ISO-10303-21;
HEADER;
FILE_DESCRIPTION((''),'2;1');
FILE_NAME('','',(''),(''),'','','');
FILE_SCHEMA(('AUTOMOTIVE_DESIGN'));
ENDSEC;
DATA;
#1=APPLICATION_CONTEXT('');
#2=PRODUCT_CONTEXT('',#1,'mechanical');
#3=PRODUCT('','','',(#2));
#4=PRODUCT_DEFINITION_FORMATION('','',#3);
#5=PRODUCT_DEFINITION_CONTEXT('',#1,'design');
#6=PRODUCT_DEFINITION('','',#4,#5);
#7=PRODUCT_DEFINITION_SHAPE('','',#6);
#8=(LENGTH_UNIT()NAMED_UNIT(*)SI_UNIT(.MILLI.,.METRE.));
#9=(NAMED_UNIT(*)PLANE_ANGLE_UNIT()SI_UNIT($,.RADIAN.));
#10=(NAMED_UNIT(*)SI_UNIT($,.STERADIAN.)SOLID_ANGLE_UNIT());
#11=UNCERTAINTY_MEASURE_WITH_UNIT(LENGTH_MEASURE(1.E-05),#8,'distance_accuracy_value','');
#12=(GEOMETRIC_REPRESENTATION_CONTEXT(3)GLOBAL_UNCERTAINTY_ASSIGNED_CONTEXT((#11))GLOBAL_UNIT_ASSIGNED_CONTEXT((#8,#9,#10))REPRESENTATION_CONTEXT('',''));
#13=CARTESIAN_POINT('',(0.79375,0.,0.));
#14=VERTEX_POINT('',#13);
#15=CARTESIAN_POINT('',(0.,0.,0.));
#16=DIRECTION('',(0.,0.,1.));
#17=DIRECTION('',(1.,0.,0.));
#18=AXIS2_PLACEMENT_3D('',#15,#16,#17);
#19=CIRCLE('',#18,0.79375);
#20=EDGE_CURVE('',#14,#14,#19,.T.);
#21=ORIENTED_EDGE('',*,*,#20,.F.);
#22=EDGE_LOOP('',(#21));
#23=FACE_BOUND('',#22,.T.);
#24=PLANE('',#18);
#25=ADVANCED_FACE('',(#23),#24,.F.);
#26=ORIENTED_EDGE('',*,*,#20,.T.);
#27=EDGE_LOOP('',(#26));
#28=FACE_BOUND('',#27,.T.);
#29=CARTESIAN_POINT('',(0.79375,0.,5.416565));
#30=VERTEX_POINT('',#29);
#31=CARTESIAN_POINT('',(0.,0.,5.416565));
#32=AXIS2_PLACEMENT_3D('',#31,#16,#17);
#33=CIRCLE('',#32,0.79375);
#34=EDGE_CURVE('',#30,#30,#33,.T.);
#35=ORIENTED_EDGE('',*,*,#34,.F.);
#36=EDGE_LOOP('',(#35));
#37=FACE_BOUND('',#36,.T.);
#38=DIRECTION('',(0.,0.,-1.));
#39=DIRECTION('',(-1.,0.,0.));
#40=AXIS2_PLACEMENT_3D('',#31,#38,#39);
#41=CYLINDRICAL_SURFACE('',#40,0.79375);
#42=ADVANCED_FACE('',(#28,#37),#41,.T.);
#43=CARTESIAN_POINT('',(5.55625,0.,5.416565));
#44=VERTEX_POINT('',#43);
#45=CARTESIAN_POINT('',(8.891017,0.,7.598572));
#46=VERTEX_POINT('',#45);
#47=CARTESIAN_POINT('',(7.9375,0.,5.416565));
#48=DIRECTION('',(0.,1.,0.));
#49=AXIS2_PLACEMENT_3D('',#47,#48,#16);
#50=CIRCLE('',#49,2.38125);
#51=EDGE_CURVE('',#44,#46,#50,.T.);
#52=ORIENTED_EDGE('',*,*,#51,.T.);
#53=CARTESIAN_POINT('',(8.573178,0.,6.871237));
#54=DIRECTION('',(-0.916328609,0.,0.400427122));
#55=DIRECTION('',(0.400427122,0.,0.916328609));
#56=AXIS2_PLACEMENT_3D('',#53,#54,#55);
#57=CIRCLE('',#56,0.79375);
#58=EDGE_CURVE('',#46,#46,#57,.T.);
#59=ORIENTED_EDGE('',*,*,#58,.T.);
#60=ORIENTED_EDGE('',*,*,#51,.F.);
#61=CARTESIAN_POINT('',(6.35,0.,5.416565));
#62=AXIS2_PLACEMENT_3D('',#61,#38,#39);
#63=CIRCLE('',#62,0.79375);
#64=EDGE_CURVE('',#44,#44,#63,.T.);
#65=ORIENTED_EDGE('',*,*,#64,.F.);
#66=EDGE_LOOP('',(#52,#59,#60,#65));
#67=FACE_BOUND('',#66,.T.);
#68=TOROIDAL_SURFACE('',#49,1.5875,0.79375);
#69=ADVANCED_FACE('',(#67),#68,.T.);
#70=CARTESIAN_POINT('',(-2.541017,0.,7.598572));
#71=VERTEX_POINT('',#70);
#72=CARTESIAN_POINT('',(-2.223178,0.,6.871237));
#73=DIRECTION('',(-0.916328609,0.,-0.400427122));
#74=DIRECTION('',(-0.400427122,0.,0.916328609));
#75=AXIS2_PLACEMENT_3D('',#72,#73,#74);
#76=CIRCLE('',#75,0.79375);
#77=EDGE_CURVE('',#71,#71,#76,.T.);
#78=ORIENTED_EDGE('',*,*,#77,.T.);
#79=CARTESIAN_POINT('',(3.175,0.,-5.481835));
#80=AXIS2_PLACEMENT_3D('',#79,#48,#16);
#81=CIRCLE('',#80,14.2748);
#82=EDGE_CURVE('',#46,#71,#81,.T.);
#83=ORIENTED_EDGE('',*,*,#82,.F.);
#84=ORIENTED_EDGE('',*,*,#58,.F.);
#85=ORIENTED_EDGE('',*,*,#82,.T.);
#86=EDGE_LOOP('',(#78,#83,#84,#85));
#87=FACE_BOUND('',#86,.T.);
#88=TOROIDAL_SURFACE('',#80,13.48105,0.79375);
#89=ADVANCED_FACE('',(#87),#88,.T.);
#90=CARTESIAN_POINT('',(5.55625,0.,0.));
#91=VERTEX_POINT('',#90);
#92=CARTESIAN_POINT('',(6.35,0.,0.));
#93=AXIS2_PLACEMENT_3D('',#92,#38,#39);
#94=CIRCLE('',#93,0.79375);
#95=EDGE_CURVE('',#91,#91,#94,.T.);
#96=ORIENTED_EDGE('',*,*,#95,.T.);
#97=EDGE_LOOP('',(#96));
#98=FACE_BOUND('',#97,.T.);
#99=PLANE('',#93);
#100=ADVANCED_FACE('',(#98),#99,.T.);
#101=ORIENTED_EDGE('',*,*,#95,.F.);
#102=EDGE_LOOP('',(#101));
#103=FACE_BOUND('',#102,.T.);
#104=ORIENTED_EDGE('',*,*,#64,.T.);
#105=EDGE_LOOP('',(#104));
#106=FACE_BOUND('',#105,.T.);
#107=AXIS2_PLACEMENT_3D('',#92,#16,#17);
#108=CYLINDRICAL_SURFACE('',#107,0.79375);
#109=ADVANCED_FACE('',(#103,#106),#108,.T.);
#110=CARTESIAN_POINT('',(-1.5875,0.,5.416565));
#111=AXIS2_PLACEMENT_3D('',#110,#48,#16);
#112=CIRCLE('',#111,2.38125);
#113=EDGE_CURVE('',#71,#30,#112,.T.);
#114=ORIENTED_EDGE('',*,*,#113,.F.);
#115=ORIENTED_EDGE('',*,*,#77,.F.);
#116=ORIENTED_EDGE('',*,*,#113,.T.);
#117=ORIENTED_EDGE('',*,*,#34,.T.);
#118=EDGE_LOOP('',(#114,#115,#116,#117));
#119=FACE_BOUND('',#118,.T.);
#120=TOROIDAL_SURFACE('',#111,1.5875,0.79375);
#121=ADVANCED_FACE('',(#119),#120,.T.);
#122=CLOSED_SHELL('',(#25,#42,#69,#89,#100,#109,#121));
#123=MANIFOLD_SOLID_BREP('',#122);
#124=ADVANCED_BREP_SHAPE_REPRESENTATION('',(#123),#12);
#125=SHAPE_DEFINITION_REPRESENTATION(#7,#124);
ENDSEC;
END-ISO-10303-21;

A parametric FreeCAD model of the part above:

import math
import FreeCAD as App
import Part
import Sketcher
Q = App.Units.Quantity

doc = App.newDocument("Part")
body = doc.addObject("PartDesign::Body", "Body")

# Sketch on XY plane
sketch1 = doc.addObject("Sketcher::SketchObject", "Sketch")
body.addObject(sketch1)
sketch1.AttachmentSupport = (doc.XY_Plane, [""])
sketch1.MapMode = "FlatFace"
sketch1.addGeometry(Part.Circle(App.Vector(0, 0, 0), App.Vector(0, 0, 1), 0.8), False)
sketch1.addConstraint(Sketcher.Constraint("Coincident", 0, 3, -1, 1))
sketch1.addConstraint(Sketcher.Constraint("Diameter", 0, Q("0.0625 in")))

# Sketch on XZ plane
sketch2 = doc.addObject("Sketcher::SketchObject", "Sketch001")
body.addObject(sketch2)
sketch2.AttachmentSupport = (doc.XZ_Plane, [""])
sketch2.MapMode = "FlatFace"
sketch2.addGeometry(Part.LineSegment(App.Vector(0, 0, 0), App.Vector(0, 5.4, 0)), False)
sketch2.addGeometry(Part.ArcOfCircle(Part.Circle(App.Vector(-1.6, 5.4, 0), App.Vector(0, 0, 1), 1.6), math.radians(0), math.radians(114)), False)
sketch2.addGeometry(Part.ArcOfCircle(Part.Circle(App.Vector(3.2, -5.5, 0), App.Vector(0, 0, 1), 13.5), math.radians(114), math.radians(426)), False)
sketch2.addGeometry(Part.ArcOfCircle(Part.Circle(App.Vector(7.9, 5.4, 0), App.Vector(0, 0, 1), 1.6), math.radians(66), math.radians(180)), False)
sketch2.addGeometry(Part.LineSegment(App.Vector(6.3, 5.4, 0), App.Vector(6.3, 0, 0)), False)
sketch2.addConstraint(Sketcher.Constraint("Tangent", 0, 2, 1, 1))
sketch2.addConstraint(Sketcher.Constraint("Tangent", 1, 2, 2, 1))
sketch2.addConstraint(Sketcher.Constraint("Tangent", 2, 2, 3, 1))
sketch2.addConstraint(Sketcher.Constraint("Tangent", 3, 2, 4, 1))
sketch2.addConstraint(Sketcher.Constraint("Vertical", 0))
sketch2.addConstraint(Sketcher.Constraint("Vertical", 4))
sketch2.addConstraint(Sketcher.Constraint("Coincident", 0, 1, -1, 1))
sketch2.addConstraint(Sketcher.Constraint("Equal", 1, 3))
sketch2.addConstraint(Sketcher.Constraint("PointOnObject", 4, 2, -1))
sketch2.addConstraint(Sketcher.Constraint("Horizontal", 1, 3, 3, 3))
sketch2.addConstraint(Sketcher.Constraint("Radius", 1, Q("0.0625 in")))
sketch2.addConstraint(Sketcher.Constraint("DistanceX", -1, 1, 3, 2, Q("0.25 in")))
sketch2.addConstraint(Sketcher.Constraint("Radius", 2, 13.48105))
sketch2.addConstraint(Sketcher.Constraint("DistanceY", 0, 1, 0, 2, 5.416565))
doc.recompute()

additivepipe = doc.addObject("PartDesign::AdditivePipe", "AdditivePipe")
body.addObject(additivepipe)
additivepipe.Profile = sketch1
additivepipe.Spine = (sketch2, ["Edge1", "Edge2", "Edge3", "Edge4", "Edge5"])

doc.recompute()
